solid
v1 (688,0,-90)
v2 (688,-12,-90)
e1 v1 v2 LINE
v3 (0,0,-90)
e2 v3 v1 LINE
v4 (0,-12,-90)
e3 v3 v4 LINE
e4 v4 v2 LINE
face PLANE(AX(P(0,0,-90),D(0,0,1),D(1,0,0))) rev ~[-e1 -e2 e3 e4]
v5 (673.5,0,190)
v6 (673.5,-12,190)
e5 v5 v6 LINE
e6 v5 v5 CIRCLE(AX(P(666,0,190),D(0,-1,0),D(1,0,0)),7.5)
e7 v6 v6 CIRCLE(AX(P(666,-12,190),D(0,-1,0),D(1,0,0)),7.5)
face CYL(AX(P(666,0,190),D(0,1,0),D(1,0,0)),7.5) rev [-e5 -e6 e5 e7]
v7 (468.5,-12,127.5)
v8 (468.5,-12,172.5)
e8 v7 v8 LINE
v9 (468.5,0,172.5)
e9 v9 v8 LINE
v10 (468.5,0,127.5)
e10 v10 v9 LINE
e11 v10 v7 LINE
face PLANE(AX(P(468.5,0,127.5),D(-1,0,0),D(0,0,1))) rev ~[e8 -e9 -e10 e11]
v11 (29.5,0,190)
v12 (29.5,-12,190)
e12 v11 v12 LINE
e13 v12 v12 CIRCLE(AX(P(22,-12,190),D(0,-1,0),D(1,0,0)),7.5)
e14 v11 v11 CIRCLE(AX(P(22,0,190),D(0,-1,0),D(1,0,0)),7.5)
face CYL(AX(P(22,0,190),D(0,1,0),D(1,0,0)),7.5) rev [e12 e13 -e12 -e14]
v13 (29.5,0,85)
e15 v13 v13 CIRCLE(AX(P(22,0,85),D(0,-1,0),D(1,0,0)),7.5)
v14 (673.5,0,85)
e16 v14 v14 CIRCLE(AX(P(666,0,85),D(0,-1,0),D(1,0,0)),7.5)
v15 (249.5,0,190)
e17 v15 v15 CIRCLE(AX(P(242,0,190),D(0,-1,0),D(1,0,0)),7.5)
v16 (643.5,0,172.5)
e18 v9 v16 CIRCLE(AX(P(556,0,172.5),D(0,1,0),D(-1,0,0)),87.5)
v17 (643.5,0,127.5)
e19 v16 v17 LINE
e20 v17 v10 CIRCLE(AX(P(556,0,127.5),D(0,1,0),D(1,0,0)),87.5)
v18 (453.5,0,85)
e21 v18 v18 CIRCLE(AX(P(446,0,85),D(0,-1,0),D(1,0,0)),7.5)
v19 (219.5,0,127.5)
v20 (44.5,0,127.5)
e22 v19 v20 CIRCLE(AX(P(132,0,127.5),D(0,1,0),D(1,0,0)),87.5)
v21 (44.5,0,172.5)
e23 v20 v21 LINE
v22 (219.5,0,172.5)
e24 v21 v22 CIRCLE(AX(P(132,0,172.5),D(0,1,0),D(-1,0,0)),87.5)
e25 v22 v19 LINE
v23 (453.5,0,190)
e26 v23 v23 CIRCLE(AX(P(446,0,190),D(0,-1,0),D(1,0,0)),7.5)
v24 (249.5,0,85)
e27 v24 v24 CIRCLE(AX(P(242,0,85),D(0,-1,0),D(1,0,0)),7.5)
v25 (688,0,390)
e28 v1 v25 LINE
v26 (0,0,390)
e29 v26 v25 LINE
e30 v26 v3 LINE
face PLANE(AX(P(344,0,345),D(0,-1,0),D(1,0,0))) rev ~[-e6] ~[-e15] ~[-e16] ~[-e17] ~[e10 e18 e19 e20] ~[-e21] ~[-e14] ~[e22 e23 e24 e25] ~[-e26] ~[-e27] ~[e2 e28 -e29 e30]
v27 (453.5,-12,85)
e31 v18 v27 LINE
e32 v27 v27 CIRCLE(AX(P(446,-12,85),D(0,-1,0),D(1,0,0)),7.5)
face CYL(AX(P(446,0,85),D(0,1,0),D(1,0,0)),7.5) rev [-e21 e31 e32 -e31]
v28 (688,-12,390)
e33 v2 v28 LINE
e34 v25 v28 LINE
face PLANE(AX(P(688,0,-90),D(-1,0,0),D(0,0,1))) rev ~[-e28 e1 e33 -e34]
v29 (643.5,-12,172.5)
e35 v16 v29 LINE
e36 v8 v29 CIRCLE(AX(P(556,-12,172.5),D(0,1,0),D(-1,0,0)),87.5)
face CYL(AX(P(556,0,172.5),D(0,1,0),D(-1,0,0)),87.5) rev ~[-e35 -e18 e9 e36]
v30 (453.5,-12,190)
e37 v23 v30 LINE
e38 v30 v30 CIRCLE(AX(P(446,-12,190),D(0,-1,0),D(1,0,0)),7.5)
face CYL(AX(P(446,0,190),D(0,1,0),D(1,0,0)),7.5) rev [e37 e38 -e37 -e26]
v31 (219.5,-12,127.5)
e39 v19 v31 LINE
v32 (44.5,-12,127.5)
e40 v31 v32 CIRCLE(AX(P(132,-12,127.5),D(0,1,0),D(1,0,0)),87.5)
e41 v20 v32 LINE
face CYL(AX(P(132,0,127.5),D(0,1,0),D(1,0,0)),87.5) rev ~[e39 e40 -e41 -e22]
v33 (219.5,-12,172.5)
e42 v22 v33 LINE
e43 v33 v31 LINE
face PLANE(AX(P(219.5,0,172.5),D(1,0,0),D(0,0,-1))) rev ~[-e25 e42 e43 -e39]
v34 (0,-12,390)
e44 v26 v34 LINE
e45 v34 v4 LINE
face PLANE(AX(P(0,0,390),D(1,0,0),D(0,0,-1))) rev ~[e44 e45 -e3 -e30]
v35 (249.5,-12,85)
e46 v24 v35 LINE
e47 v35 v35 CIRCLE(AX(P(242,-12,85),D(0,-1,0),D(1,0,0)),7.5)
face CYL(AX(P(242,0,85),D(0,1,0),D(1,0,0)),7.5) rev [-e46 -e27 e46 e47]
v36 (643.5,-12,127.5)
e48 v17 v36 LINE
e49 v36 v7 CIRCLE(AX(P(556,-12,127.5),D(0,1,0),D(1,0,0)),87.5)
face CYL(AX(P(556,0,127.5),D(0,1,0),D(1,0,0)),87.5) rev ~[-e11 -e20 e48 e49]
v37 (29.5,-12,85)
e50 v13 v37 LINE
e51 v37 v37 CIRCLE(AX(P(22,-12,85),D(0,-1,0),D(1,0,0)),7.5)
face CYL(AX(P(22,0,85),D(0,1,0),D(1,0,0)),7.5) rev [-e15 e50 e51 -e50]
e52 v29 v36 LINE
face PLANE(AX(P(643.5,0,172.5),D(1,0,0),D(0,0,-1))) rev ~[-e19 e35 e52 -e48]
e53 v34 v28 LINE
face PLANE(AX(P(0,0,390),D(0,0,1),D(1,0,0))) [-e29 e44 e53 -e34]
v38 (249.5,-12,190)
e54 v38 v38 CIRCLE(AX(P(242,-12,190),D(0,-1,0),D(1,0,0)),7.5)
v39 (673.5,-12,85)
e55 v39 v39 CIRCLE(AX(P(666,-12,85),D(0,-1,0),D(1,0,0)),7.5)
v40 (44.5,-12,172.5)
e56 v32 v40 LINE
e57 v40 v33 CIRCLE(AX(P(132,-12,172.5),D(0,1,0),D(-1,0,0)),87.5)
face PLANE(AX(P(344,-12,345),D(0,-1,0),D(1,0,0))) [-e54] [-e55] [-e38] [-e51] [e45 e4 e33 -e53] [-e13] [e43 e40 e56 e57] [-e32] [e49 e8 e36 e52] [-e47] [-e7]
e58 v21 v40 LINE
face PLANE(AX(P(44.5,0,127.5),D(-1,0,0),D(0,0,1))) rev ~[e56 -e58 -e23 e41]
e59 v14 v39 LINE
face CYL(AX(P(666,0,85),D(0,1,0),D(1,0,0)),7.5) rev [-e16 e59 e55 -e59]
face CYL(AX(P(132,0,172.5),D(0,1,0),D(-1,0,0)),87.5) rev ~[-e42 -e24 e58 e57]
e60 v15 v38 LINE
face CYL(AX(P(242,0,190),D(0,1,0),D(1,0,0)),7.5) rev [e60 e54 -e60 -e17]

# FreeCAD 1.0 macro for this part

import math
import FreeCAD as App
import Part
import Sketcher

V = App.Vector

doc = App.newDocument("Part")
body = doc.addObject("PartDesign::Body", "Body")

# Sketch on XZ plane
sketch1 = body.newObject("Sketcher::SketchObject", "Sketch")
sketch1.AttachmentSupport = (doc.getObject("XZ_Plane"), [""])
sketch1.MapMode = "FlatFace"
sketch1.addGeometry([
    Part.LineSegment(V(0, 390, 0), V(0, -90, 0)),  # 0
    Part.LineSegment(V(0, -90, 0), V(688, -90, 0)),  # 1
    Part.LineSegment(V(688, -90, 0), V(688, 390, 0)),  # 2
    Part.LineSegment(V(688, 390, 0), V(0, 390, 0)),  # 3
    Part.Circle(V(22, 85, 0), V(0, 0, 1), 8),  # 4
    Part.Circle(V(242, 85, 0), V(0, 0, 1), 8),  # 5
    Part.Circle(V(446, 85, 0), V(0, 0, 1), 8),  # 6
    Part.Circle(V(666, 85, 0), V(0, 0, 1), 8),  # 7
    Part.LineSegment(V(44, 128, 0), V(44, 172, 0)),  # 8
    Part.ArcOfCircle(Part.Circle(V(132, 172, 0), V(0, 0, 1), 88), math.radians(0), math.radians(180)),  # 9
    Part.LineSegment(V(220, 172, 0), V(220, 128, 0)),  # 10
    Part.ArcOfCircle(Part.Circle(V(132, 128, 0), V(0, 0, 1), 88), math.radians(180), math.radians(360)),  # 11
    Part.Circle(V(22, 190, 0), V(0, 0, 1), 8),  # 12
    Part.Circle(V(242, 190, 0), V(0, 0, 1), 8),  # 13
    Part.Circle(V(446, 190, 0), V(0, 0, 1), 8),  # 14
    Part.LineSegment(V(468, 128, 0), V(468, 172, 0)),  # 15
    Part.ArcOfCircle(Part.Circle(V(556, 172, 0), V(0, 0, 1), 88), math.radians(0), math.radians(180)),  # 16
    Part.LineSegment(V(644, 172, 0), V(644, 128, 0)),  # 17
    Part.ArcOfCircle(Part.Circle(V(556, 128, 0), V(0, 0, 1), 88), math.radians(180), math.radians(360)),  # 18
    Part.Circle(V(666, 190, 0), V(0, 0, 1), 8),  # 19
], False)
sketch1.addConstraint([
    Sketcher.Constraint("Coincident", 0, 2, 1, 1),
    Sketcher.Constraint("Coincident", 1, 2, 2, 1),
    Sketcher.Constraint("Coincident", 2, 2, 3, 1),
    Sketcher.Constraint("Coincident", 3, 2, 0, 1),
    Sketcher.Constraint("Tangent", 8, 2, 9, 2),
    Sketcher.Constraint("Tangent", 9, 1, 10, 1),
    Sketcher.Constraint("Tangent", 10, 2, 11, 2),
    Sketcher.Constraint("Tangent", 11, 1, 8, 1),
    Sketcher.Constraint("Tangent", 15, 2, 16, 2),
    Sketcher.Constraint("Tangent", 16, 1, 17, 1),
    Sketcher.Constraint("Tangent", 17, 2, 18, 2),
    Sketcher.Constraint("Tangent", 18, 1, 15, 1),
    Sketcher.Constraint("Vertical", 0),
    Sketcher.Constraint("Horizontal", 1),
    Sketcher.Constraint("Vertical", 2),
    Sketcher.Constraint("Horizontal", 3),
    Sketcher.Constraint("Vertical", 8),
    Sketcher.Constraint("Vertical", 10),
    Sketcher.Constraint("Vertical", 15),
    Sketcher.Constraint("Vertical", 17),
    Sketcher.Constraint("Equal", 4, 5),
    Sketcher.Constraint("Equal", 5, 6),
    Sketcher.Constraint("Equal", 6, 7),
    Sketcher.Constraint("Equal", 7, 12),
    Sketcher.Constraint("Equal", 12, 13),
    Sketcher.Constraint("Equal", 13, 14),
    Sketcher.Constraint("Equal", 11, 16),
    Sketcher.Constraint("Equal", 14, 19),
    Sketcher.Constraint("PointOnObject", 0, 2, -2),
    Sketcher.Constraint("Horizontal", 4, 3, 5, 3),
    Sketcher.Constraint("Horizontal", 5, 3, 6, 3),
    Sketcher.Constraint("Horizontal", 6, 3, 7, 3),
    Sketcher.Constraint("Horizontal", 12, 3, 13, 3),
    Sketcher.Constraint("Horizontal", 13, 3, 14, 3),
    Sketcher.Constraint("Horizontal", 9, 3, 16, 3),
    Sketcher.Constraint("Horizontal", 11, 3, 18, 3),
    Sketcher.Constraint("Horizontal", 14, 3, 19, 3),
    Sketcher.Constraint("Vertical", 4, 3, 12, 3),
    Sketcher.Constraint("Vertical", 5, 3, 13, 3),
    Sketcher.Constraint("Vertical", 6, 3, 14, 3),
    Sketcher.Constraint("Vertical", 7, 3, 19, 3),
    Sketcher.Constraint("Diameter", 4, 15.0),
    Sketcher.Constraint("Radius", 9, 87.5),
    Sketcher.Constraint("DistanceX", 1, 1, 1, 2, 688.0),
    Sketcher.Constraint("DistanceY", 0, 2, 0, 1, 480.0),
    Sketcher.Constraint("DistanceY", 8, 1, 8, 2, 45.0),
    Sketcher.Constraint("DistanceX", -1, 1, 4, 3, 22.0),
    Sketcher.Constraint("DistanceY", -1, 1, 4, 3, 85.0),
    Sketcher.Constraint("DistanceX", -1, 1, 5, 3, 242.0),
    Sketcher.Constraint("DistanceX", -1, 1, 6, 3, 446.0),
    Sketcher.Constraint("DistanceX", -1, 1, 7, 3, 666.0),
    Sketcher.Constraint("DistanceX", -1, 1, 9, 3, 132.0),
    Sketcher.Constraint("DistanceY", -1, 1, 12, 3, 190.0),
    Sketcher.Constraint("DistanceX", -1, 1, 16, 3, 556.0),
    Sketcher.Constraint("DistanceY", 0, 2, -1, 1, 90.0),
    Sketcher.Constraint("DistanceY", -1, 1, 9, 3, 172.5),
])
pad1 = body.newObject("PartDesign::Pad", "Pad")
pad1.Profile = sketch1
pad1.Length = 12

doc.recompute()
